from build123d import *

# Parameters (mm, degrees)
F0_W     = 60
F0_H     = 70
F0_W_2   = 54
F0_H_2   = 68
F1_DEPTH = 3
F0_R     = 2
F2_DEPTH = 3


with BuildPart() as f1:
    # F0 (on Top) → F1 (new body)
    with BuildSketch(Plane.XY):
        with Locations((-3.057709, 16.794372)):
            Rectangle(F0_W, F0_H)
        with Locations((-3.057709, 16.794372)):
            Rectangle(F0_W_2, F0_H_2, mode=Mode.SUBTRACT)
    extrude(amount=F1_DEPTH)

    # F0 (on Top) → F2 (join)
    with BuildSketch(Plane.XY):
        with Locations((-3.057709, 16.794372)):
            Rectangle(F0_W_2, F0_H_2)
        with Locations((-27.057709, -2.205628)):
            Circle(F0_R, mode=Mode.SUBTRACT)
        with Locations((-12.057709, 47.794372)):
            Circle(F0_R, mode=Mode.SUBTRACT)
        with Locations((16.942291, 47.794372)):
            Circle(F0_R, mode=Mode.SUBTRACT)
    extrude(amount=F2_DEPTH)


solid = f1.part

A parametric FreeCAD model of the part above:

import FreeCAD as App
import Part
import Sketcher


def add_polygon(sketch, points):
    """Adds a closed chain of lines whose ends are joined by coincident constraints."""
    first, n = sketch.GeometryCount, len(points)
    for a, b in zip(points, points[1:] + points[:1]):
        sketch.addGeometry(Part.LineSegment(App.Vector(*a, 0), App.Vector(*b, 0)), False)
    for i in range(n):
        sketch.addConstraint(Sketcher.Constraint("Coincident", first + i, 2, first + (i + 1) % n, 1))

doc = App.newDocument("Part")
params = doc.addObject("Spreadsheet::Sheet", "Params")
for row, (alias, value) in enumerate([
    ("sketch1_width", "60 mm"),
    ("sketch1_width2", "54 mm"),
    ("sketch1_height", "70 mm"),
    ("sketch1_height2", "68 mm"),
    ("pad1_length", "3 mm"),
    ("sketch2_diameter", "4 mm"),
    ("sketch2_width", "54 mm"),
    ("sketch2_height", "68 mm"),
    ("pad2_length", "3 mm"),
], start=1):
    params.set(f"A{row}", alias)
    params.set(f"B{row}", "=" + value)
    params.setAlias(f"B{row}", alias)

body = doc.addObject("PartDesign::Body", "Body")

# Sketch on XY plane
sketch1 = body.newObject("Sketcher::SketchObject", "Sketch")
sketch1.AttachmentSupport = (doc.getObject("XY_Plane"), [""])
sketch1.MapMode = "FlatFace"
add_polygon(sketch1, [(-33, 52), (-33, -18), (27, -18), (27, 52)])  # lines 0-3
add_polygon(sketch1, [(24, -17), (-30, -17), (-30, 51), (24, 51)])  # lines 4-7
sketch1.addConstraint(Sketcher.Constraint("Vertical", 0))
sketch1.addConstraint(Sketcher.Constraint("Horizontal", 1))
sketch1.addConstraint(Sketcher.Constraint("Vertical", 2))
sketch1.addConstraint(Sketcher.Constraint("Horizontal", 3))
sketch1.addConstraint(Sketcher.Constraint("Horizontal", 4))
sketch1.addConstraint(Sketcher.Constraint("Vertical", 5))
sketch1.addConstraint(Sketcher.Constraint("Horizontal", 6))
sketch1.addConstraint(Sketcher.Constraint("Vertical", 7))
sketch1.addConstraint(Sketcher.Constraint("DistanceX", 1, 1, 1, 2, 60.0))
sketch1.addConstraint(Sketcher.Constraint("DistanceX", 4, 2, 4, 1, 54.0))
sketch1.addConstraint(Sketcher.Constraint("DistanceY", 0, 2, 0, 1, 70.0))
sketch1.addConstraint(Sketcher.Constraint("DistanceY", 5, 1, 5, 2, 68.0))
sketch1.addConstraint(Sketcher.Constraint("DistanceX", 0, 2, 4, 2, 3.0))
sketch1.addConstraint(Sketcher.Constraint("DistanceY", 0, 2, 4, 2, 1.0))
sketch1.addConstraint(Sketcher.Constraint("DistanceX", 0, 2, -1, 1, 33.057709))
sketch1.addConstraint(Sketcher.Constraint("DistanceY", 0, 2, -1, 1, 18.205628))
sketch1.setExpression("Constraints[16]", "Params.sketch1_width")
sketch1.setExpression("Constraints[17]", "Params.sketch1_width2")
sketch1.setExpression("Constraints[18]", "Params.sketch1_height")
sketch1.setExpression("Constraints[19]", "Params.sketch1_height2")
pad1 = body.newObject("PartDesign::Pad", "Pad")
pad1.Profile = sketch1
pad1.setExpression("Length", "Params.pad1_length")

# Sketch on XY plane
sketch2 = body.newObject("Sketcher::SketchObject", "Sketch001")
sketch2.AttachmentSupport = (doc.getObject("XY_Plane"), [""])
sketch2.MapMode = "FlatFace"
add_polygon(sketch2, [(-30.1, 50.8), (-30.1, -17.2), (23.9, -17.2), (23.9, 50.8)])  # lines 0-3
sketch2.addGeometry(Part.Circle(App.Vector(-27.1, -2.2, 0), App.Vector(0, 0, 1), 2), False)  # 4
sketch2.addGeometry(Part.Circle(App.Vector(-12.1, 47.8, 0), App.Vector(0, 0, 1), 2), False)  # 5
sketch2.addGeometry(Part.Circle(App.Vector(16.9, 47.8, 0), App.Vector(0, 0, 1), 2), False)  # 6
sketch2.addConstraint(Sketcher.Constraint("Vertical", 0))
sketch2.addConstraint(Sketcher.Constraint("Horizontal", 1))
sketch2.addConstraint(Sketcher.Constraint("Vertical", 2))
sketch2.addConstraint(Sketcher.Constraint("Horizontal", 3))
sketch2.addConstraint(Sketcher.Constraint("Equal", 4, 5))
sketch2.addConstraint(Sketcher.Constraint("Equal", 5, 6))
sketch2.addConstraint(Sketcher.Constraint("Horizontal", 5, 3, 6, 3))
sketch2.addConstraint(Sketcher.Constraint("Diameter", 4, 4.0))
sketch2.addConstraint(Sketcher.Constraint("DistanceX", 1, 1, 1, 2, 54.0))
sketch2.addConstraint(Sketcher.Constraint("DistanceY", 0, 2, 0, 1, 68.0))
sketch2.addConstraint(Sketcher.Constraint("DistanceX", 4, 3, 5, 3, 15.0))
sketch2.addConstraint(Sketcher.Constraint("DistanceY", 4, 3, 5, 3, 50.0))
sketch2.addConstraint(Sketcher.Constraint("DistanceX", 5, 3, 6, 3, 29.0))
sketch2.addConstraint(Sketcher.Constraint("DistanceX", 0, 2, 4, 3, 3.0))
sketch2.addConstraint(Sketcher.Constraint("DistanceY", 0, 2, 4, 3, 15.0))
sketch2.addConstraint(Sketcher.Constraint("DistanceX", 4, 3, -1, 1, 27.057709))
sketch2.addConstraint(Sketcher.Constraint("DistanceY", 0, 2, -1, 1, 17.205628))
sketch2.setExpression("Constraints[11]", "Params.sketch2_diameter")
sketch2.setExpression("Constraints[12]", "Params.sketch2_width")
sketch2.setExpression("Constraints[13]", "Params.sketch2_height")
pad2 = body.newObject("PartDesign::Pad", "Pad001")
pad2.Profile = sketch2
pad2.setExpression("Length", "Params.pad2_length")

doc.recompute()
